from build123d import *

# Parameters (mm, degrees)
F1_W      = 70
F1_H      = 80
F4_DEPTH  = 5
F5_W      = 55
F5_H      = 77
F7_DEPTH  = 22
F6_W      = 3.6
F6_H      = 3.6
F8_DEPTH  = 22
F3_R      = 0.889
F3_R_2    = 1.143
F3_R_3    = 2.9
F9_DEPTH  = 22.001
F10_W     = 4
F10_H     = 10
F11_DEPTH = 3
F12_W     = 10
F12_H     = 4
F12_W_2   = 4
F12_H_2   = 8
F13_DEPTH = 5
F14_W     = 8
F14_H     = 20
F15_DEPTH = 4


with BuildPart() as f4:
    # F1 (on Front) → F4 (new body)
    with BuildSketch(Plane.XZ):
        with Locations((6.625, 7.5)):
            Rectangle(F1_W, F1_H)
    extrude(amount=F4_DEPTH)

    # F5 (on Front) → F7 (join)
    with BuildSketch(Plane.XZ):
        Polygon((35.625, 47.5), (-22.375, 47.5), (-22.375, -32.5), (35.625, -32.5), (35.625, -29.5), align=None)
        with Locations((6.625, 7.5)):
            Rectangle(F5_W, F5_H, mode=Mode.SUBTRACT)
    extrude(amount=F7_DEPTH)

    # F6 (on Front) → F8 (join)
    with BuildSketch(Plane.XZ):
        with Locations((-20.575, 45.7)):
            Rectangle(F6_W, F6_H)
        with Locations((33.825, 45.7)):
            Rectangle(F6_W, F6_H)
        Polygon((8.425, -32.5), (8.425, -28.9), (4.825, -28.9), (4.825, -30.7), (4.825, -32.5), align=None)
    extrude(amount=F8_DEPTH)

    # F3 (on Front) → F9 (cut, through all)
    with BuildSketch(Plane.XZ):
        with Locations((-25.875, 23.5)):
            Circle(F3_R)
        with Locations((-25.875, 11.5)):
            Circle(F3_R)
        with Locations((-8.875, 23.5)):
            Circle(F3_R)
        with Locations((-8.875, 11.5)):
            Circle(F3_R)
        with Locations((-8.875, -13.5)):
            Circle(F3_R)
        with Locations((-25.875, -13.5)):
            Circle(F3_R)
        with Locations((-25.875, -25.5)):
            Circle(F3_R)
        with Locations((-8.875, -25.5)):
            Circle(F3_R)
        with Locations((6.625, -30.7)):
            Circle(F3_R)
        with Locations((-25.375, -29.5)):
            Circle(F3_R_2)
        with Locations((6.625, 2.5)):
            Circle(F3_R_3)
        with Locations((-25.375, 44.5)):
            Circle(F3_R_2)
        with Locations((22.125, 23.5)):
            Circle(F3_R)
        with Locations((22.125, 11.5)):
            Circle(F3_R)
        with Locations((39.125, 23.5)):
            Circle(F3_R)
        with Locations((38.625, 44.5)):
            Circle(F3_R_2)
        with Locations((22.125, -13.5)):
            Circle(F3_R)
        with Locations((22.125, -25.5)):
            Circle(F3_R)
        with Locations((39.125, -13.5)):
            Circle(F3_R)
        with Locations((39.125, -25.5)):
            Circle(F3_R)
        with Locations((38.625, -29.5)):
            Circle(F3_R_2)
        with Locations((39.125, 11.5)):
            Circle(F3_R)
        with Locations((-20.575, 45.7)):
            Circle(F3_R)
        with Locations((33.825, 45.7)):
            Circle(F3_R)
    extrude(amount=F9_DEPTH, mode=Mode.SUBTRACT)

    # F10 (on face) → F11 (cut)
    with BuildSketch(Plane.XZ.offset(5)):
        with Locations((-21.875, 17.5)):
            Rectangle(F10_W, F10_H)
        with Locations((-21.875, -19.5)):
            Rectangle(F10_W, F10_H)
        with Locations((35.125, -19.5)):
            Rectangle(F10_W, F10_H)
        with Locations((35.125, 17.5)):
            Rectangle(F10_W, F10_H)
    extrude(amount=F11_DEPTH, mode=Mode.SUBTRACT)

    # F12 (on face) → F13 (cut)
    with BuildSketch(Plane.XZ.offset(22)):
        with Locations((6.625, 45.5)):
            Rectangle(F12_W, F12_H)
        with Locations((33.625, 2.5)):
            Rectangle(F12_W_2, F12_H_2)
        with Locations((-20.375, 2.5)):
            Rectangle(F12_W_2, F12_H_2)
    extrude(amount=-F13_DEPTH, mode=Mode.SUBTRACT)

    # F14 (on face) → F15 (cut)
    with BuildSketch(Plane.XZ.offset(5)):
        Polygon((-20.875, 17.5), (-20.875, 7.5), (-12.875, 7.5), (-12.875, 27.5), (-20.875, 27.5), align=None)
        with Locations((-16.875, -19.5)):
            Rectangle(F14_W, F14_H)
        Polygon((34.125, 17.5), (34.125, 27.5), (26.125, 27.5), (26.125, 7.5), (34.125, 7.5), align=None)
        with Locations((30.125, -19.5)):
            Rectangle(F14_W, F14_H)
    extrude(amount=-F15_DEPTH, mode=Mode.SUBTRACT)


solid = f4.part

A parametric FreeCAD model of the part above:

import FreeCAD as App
import Part
import Sketcher
from FreeCAD import Vector

doc = App.newDocument("Part")
params = doc.addObject("Spreadsheet::Sheet", "Params")
for row, (alias, value) in enumerate([
    ("sketch1_width", "70 mm"),
    ("sketch1_height", "80 mm"),
    ("pad1_length", "5 mm"),
    ("sketch2_width", "58 mm"),
    ("sketch2_width2", "55 mm"),
    ("sketch2_height", "80 mm"),
    ("sketch2_height2", "77 mm"),
    ("pad2_length", "22 mm"),
    ("sketch3_width", "3.6 mm"),
    ("pad3_length", "22 mm"),
    ("sketch4_diameter", "5.8 mm"),
    ("sketch5_width", "4 mm"),
    ("sketch5_height", "10 mm"),
    ("pocket2_length", "3 mm"),
    ("sketch6_width", "10 mm"),
    ("sketch6_width2", "4 mm"),
    ("sketch6_height", "8 mm"),
    ("pocket3_length", "5 mm"),
    ("sketch7_width", "8 mm"),
    ("sketch7_height", "20 mm"),
    ("pocket4_length", "4 mm"),
], start=1):
    params.set(f"A{row}", alias)
    params.set(f"B{row}", "=" + value)
    params.setAlias(f"B{row}", alias)

body = doc.addObject("PartDesign::Body", "Body")

sketch1 = body.newObject("Sketcher::SketchObject", "Sketch")
sketch1.AttachmentSupport = (doc.getObject("XZ_Plane"), [""])
sketch1.MapMode = "FlatFace"
sketch1.addGeometry([
    Part.LineSegment(Vector(-28.375, 47.5, 0), Vector(-28.375, -32.5, 0)),
    Part.LineSegment(Vector(-28.375, -32.5, 0), Vector(41.625, -32.5, 0)),
    Part.LineSegment(Vector(41.625, -32.5, 0), Vector(41.625, 47.5, 0)),
    Part.LineSegment(Vector(41.625, 47.5, 0), Vector(-28.375, 47.5, 0)),
], False)
sketch1.addConstraint([
    Sketcher.Constraint("Coincident", 0, 2, 1, 1),
    Sketcher.Constraint("Coincident", 1, 2, 2, 1),
    Sketcher.Constraint("Coincident", 2, 2, 3, 1),
    Sketcher.Constraint("Coincident", 3, 2, 0, 1),
    Sketcher.Constraint("Vertical", 0),
    Sketcher.Constraint("Horizontal", 1),
    Sketcher.Constraint("Vertical", 2),
    Sketcher.Constraint("Horizontal", 3),
    Sketcher.Constraint("DistanceX", 1, 1, 1, 2, 70.0),
    Sketcher.Constraint("DistanceY", 0, 2, 0, 1, 80.0),
    Sketcher.Constraint("DistanceY", 0, 2, -1, 1, 32.5),
    Sketcher.Constraint("DistanceX", 0, 2, -1, 1, 28.375),
])
sketch1.setExpression("Constraints[8]", "Params.sketch1_width")
sketch1.setExpression("Constraints[9]", "Params.sketch1_height")
pad1 = body.newObject("PartDesign::Pad", "Pad")
pad1.Profile = sketch1
pad1.setExpression("Length", "Params.pad1_length")

sketch2 = body.newObject("Sketcher::SketchObject", "Sketch001")
sketch2.AttachmentSupport = (doc.getObject("XZ_Plane"), [""])
sketch2.MapMode = "FlatFace"
sketch2.addGeometry([
    Part.LineSegment(Vector(35.625, 47.5, 0), Vector(-22.375, 47.5, 0)),
    Part.LineSegment(Vector(-22.375, 47.5, 0), Vector(-22.375, -32.5, 0)),
    Part.LineSegment(Vector(-22.375, -32.5, 0), Vector(35.625, -32.5, 0)),
    Part.LineSegment(Vector(35.625, -32.5, 0), Vector(35.625, 47.5, 0)),
    Part.LineSegment(Vector(34.125, -31, 0), Vector(-20.875, -31, 0)),
    Part.LineSegment(Vector(-20.875, -31, 0), Vector(-20.875, 46, 0)),
    Part.LineSegment(Vector(-20.875, 46, 0), Vector(34.125, 46, 0)),
    Part.LineSegment(Vector(34.125, 46, 0), Vector(34.125, -31, 0)),
], False)
sketch2.addConstraint([
    Sketcher.Constraint("Coincident", 0, 2, 1, 1),
    Sketcher.Constraint("Coincident", 1, 2, 2, 1),
    Sketcher.Constraint("Coincident", 2, 2, 3, 1),
    Sketcher.Constraint("Coincident", 3, 2, 0, 1),
    Sketcher.Constraint("Coincident", 4, 2, 5, 1),
    Sketcher.Constraint("Coincident", 5, 2, 6, 1),
    Sketcher.Constraint("Coincident", 6, 2, 7, 1),
    Sketcher.Constraint("Coincident", 7, 2, 4, 1),
    Sketcher.Constraint("Horizontal", 0),
    Sketcher.Constraint("Vertical", 1),
    Sketcher.Constraint("Horizontal", 2),
    Sketcher.Constraint("Vertical", 3),
    Sketcher.Constraint("Horizontal", 4),
    Sketcher.Constraint("Vertical", 5),
    Sketcher.Constraint("Horizontal", 6),
    Sketcher.Constraint("Vertical", 7),
    Sketcher.Constraint("DistanceX", 0, 2, 0, 1, 58.0),
    Sketcher.Constraint("DistanceX", 4, 2, 4, 1, 55.0),
    Sketcher.Constraint("DistanceY", 1, 2, 1, 1, 80.0),
    Sketcher.Constraint("DistanceY", 5, 1, 5, 2, 77.0),
    Sketcher.Constraint("DistanceY", 4, 2, -1, 1, 31.0),
    Sketcher.Constraint("DistanceY", -1, 1, 0, 2, 47.5),
    Sketcher.Constraint("DistanceX", 1, 2, 4, 2, 1.5),
    Sketcher.Constraint("DistanceX", 0, 2, -1, 1, 22.375),
])
sketch2.setExpression("Constraints[16]", "Params.sketch2_width")
sketch2.setExpression("Constraints[17]", "Params.sketch2_width2")
sketch2.setExpression("Constraints[18]", "Params.sketch2_height")
sketch2.setExpression("Constraints[19]", "Params.sketch2_height2")
pad2 = body.newObject("PartDesign::Pad", "Pad001")
pad2.Profile = sketch2
pad2.setExpression("Length", "Params.pad2_length")

sketch3 = body.newObject("Sketcher::SketchObject", "Sketch002")
sketch3.AttachmentSupport = (doc.getObject("XZ_Plane"), [""])
sketch3.MapMode = "FlatFace"
sketch3.addGeometry([
    Part.LineSegment(Vector(-22.375, 47.5, 0), Vector(-22.375, 43.9, 0)),
    Part.LineSegment(Vector(-22.375, 43.9, 0), Vector(-18.775, 43.9, 0)),
    Part.LineSegment(Vector(-18.775, 43.9, 0), Vector(-18.775, 47.5, 0)),
    Part.LineSegment(Vector(-18.775, 47.5, 0), Vector(-22.375, 47.5, 0)),
    Part.LineSegment(Vector(32.025, 47.5, 0), Vector(32.025, 43.9, 0)),
    Part.LineSegment(Vector(32.025, 43.9, 0), Vector(35.625, 43.9, 0)),
    Part.LineSegment(Vector(35.625, 43.9, 0), Vector(35.625, 47.5, 0)),
    Part.LineSegment(Vector(35.625, 47.5, 0), Vector(32.025, 47.5, 0)),
    Part.LineSegment(Vector(8.425, -32.5, 0), Vector(8.425, -28.9, 0)),
    Part.LineSegment(Vector(8.425, -28.9, 0), Vector(4.825, -28.9, 0)),
    Part.LineSegment(Vector(4.825, -28.9, 0), Vector(4.825, -32.5, 0)),
    Part.LineSegment(Vector(4.825, -32.5, 0), Vector(8.425, -32.5, 0)),
], False)
sketch3.addConstraint([
    Sketcher.Constraint("Coincident", 0, 2, 1, 1),
    Sketcher.Constraint("Coincident", 1, 2, 2, 1),
    Sketcher.Constraint("Coincident", 2, 2, 3, 1),
    Sketcher.Constraint("Coincident", 3, 2, 0, 1),
    Sketcher.Constraint("Coincident", 4, 2, 5, 1),
    Sketcher.Constraint("Coincident", 5, 2, 6, 1),
    Sketcher.Constraint("Coincident", 6, 2, 7, 1),
    Sketcher.Constraint("Coincident", 7, 2, 4, 1),
    Sketcher.Constraint("Coincident", 8, 2, 9, 1),
    Sketcher.Constraint("Coincident", 9, 2, 10, 1),
    Sketcher.Constraint("Coincident", 10, 2, 11, 1),
    Sketcher.Constraint("Coincident", 11, 2, 8, 1),
    Sketcher.Constraint("Vertical", 0),
    Sketcher.Constraint("Horizontal", 1),
    Sketcher.Constraint("Vertical", 2),
    Sketcher.Constraint("Horizontal", 3),
    Sketcher.Constraint("Vertical", 4),
    Sketcher.Constraint("Horizontal", 5),
    Sketcher.Constraint("Vertical", 6),
    Sketcher.Constraint("Horizontal", 7),
    Sketcher.Constraint("Vertical", 8),
    Sketcher.Constraint("Horizontal", 9),
    Sketcher.Constraint("Vertical", 10),
    Sketcher.Constraint("Horizontal", 11),
    Sketcher.Constraint("Horizontal", 1, 2, 4, 2),
    Sketcher.Constraint("Horizontal", 3, 2, 6, 2),
    Sketcher.Constraint("Equal", 3, 5),
    Sketcher.Constraint("Equal", 7, 9),
    Sketcher.Constraint("Equal", 11, 0),
    Sketcher.Constraint("Equal", 6, 8),
    Sketcher.Constraint("DistanceX", 1, 1, 1, 2, 3.6),
    Sketcher.Constraint("DistanceX", 0, 2, 5, 2, 58.0),
    Sketcher.Constraint("DistanceY", -1, 1, 0, 2, 43.9),
    Sketcher.Constraint("DistanceY", 8, 2, -1, 1, 28.9),
    Sketcher.Constraint("DistanceX", 8, 2, 4, 2, 23.6),
    Sketcher.Constraint("DistanceX", 0, 2, -1, 1, 22.375),
])
sketch3.setExpression("Constraints[30]", "Params.sketch3_width")
pad3 = body.newObject("PartDesign::Pad", "Pad002")
pad3.Profile = sketch3
pad3.setExpression("Length", "Params.pad3_length")

sketch4 = body.newObject("Sketcher::SketchObject", "Sketch003")
sketch4.AttachmentSupport = (doc.getObject("XZ_Plane"), [""])
sketch4.MapMode = "FlatFace"
sketch4.addGeometry([
    Part.Circle(Vector(-25.875, 23.5, 0), Vector(0, 0, 1), 0.889),
    Part.Circle(Vector(-25.875, 11.5, 0), Vector(0, 0, 1), 0.889),
    Part.Circle(Vector(-8.875, 23.5, 0), Vector(0, 0, 1), 0.889),
    Part.Circle(Vector(-8.875, 11.5, 0), Vector(0, 0, 1), 0.889),
    Part.Circle(Vector(-8.875, -13.5, 0), Vector(0, 0, 1), 0.889),
    Part.Circle(Vector(-25.875, -13.5, 0), Vector(0, 0, 1), 0.889),
    Part.Circle(Vector(-25.875, -25.5, 0), Vector(0, 0, 1), 0.889),
    Part.Circle(Vector(-8.875, -25.5, 0), Vector(0, 0, 1), 0.889),
    Part.Circle(Vector(6.625, -30.7, 0), Vector(0, 0, 1), 0.889),
    Part.Circle(Vector(-25.375, -29.5, 0), Vector(0, 0, 1), 1.143),
    Part.Circle(Vector(6.625, 2.5, 0), Vector(0, 0, 1), 2.9),
    Part.Circle(Vector(-25.375, 44.5, 0), Vector(0, 0, 1), 1.143),
    Part.Circle(Vector(22.125, 23.5, 0), Vector(0, 0, 1), 0.889),
    Part.Circle(Vector(22.125, 11.5, 0), Vector(0, 0, 1), 0.889),
    Part.Circle(Vector(39.125, 23.5, 0), Vector(0, 0, 1), 0.889),
    Part.Circle(Vector(38.625, 44.5, 0), Vector(0, 0, 1), 1.143),
    Part.Circle(Vector(22.125, -13.5, 0), Vector(0, 0, 1), 0.889),
    Part.Circle(Vector(22.125, -25.5, 0), Vector(0, 0, 1), 0.889),
    Part.Circle(Vector(39.125, -13.5, 0), Vector(0, 0, 1), 0.889),
    Part.Circle(Vector(39.125, -25.5, 0), Vector(0, 0, 1), 0.889),
    Part.Circle(Vector(38.625, -29.5, 0), Vector(0, 0, 1), 1.143),
    Part.Circle(Vector(39.125, 11.5, 0), Vector(0, 0, 1), 0.889),
    Part.Circle(Vector(-20.575, 45.7, 0), Vector(0, 0, 1), 0.889),
    Part.Circle(Vector(33.825, 45.7, 0), Vector(0, 0, 1), 0.889),
], False)
sketch4.addConstraint([
    Sketcher.Constraint("Equal", 0, 1),
    Sketcher.Constraint("Equal", 1, 2),
    Sketcher.Constraint("Equal", 2, 3),
    Sketcher.Constraint("Equal", 3, 4),
    Sketcher.Constraint("Equal", 4, 5),
    Sketcher.Constraint("Equal", 5, 6),
    Sketcher.Constraint("Equal", 6, 7),
    Sketcher.Constraint("Equal", 7, 8),
    Sketcher.Constraint("Equal", 9, 11),
    Sketcher.Constraint("Equal", 8, 12),
    Sketcher.Constraint("Equal", 12, 13),
    Sketcher.Constraint("Equal", 13, 14),
    Sketcher.Constraint("Equal", 11, 15),
    Sketcher.Constraint("Equal", 14, 16),
    Sketcher.Constraint("Equal", 16, 17),
    Sketcher.Constraint("Equal", 17, 18),
    Sketcher.Constraint("Equal", 18, 19),
    Sketcher.Constraint("Equal", 15, 20),
    Sketcher.Constraint("Equal", 19, 21),
    Sketcher.Constraint("Equal", 21, 22),
    Sketcher.Constraint("Equal", 22, 23),
    Sketcher.Constraint("Horizontal", 0, 3, 2, 3),
    Sketcher.Constraint("Horizontal", 1, 3, 3, 3),
    Sketcher.Constraint("Horizontal", 4, 3, 5, 3),
    Sketcher.Constraint("Horizontal", 6, 3, 7, 3),
    Sketcher.Constraint("Horizontal", 2, 3, 12, 3),
    Sketcher.Constraint("Horizontal", 3, 3, 13, 3),
    Sketcher.Constraint("Horizontal", 12, 3, 14, 3),
    Sketcher.Constraint("Horizontal", 11, 3, 15, 3),
    Sketcher.Constraint("Horizontal", 5, 3, 16, 3),
    Sketcher.Constraint("Horizontal", 7, 3, 17, 3),
    Sketcher.Constraint("Horizontal", 16, 3, 18, 3),
    Sketcher.Constraint("Horizontal", 17, 3, 19, 3),
    Sketcher.Constraint("Horizontal", 9, 3, 20, 3),
    Sketcher.Constraint("Horizontal", 13, 3, 21, 3),
    Sketcher.Constraint("Horizontal", 22, 3, 23, 3),
    Sketcher.Constraint("Vertical", 0, 3, 1, 3),
    Sketcher.Constraint("Vertical", 2, 3, 3, 3),
    Sketcher.Constraint("Vertical", 3, 3, 4, 3),
    Sketcher.Constraint("Vertical", 1, 3, 5, 3),
    Sketcher.Constraint("Vertical", 5, 3, 6, 3),
    Sketcher.Constraint("Vertical", 4, 3, 7, 3),
    Sketcher.Constraint("Vertical", 8, 3, 10, 3),
    Sketcher.Constraint("Vertical", 9, 3, 11, 3),
    Sketcher.Constraint("Vertical", 12, 3, 13, 3),
    Sketcher.Constraint("Vertical", 13, 3, 16, 3),
    Sketcher.Constraint("Vertical", 16, 3, 17, 3),
    Sketcher.Constraint("Vertical", 14, 3, 18, 3),
    Sketcher.Constraint("Vertical", 18, 3, 19, 3),
    Sketcher.Constraint("Vertical", 15, 3, 20, 3),
    Sketcher.Constraint("Vertical", 19, 3, 21, 3),
    Sketcher.Constraint("Diameter", 10, 5.8),
    Sketcher.Constraint("Diameter", 0, 1.778),
    Sketcher.Constraint("Diameter", 9, 2.286),
    Sketcher.Constraint("DistanceY", 1, 3, 0, 3, 12.0),
    Sketcher.Constraint("DistanceX", 0, 3, 2, 3, 17.0),
    Sketcher.Constraint("DistanceY", 4, 3, 3, 3, 25.0),
    Sketcher.Constraint("DistanceY", 6, 3, 5, 3, 12.0),
    Sketcher.Constraint("DistanceY", 9, 3, 6, 3, 4.0),
    Sketcher.Constraint("DistanceX", 9, 3, 8, 3, 32.0),
    Sketcher.Constraint("DistanceY", 10, 3, 3, 3, 9.0),
    Sketcher.Constraint("DistanceY", 0, 3, 11, 3, 21.0),
    Sketcher.Constraint("DistanceX", 2, 3, 12, 3, 31.0),
    Sketcher.Constraint("DistanceX", 12, 3, 14, 3, 17.0),
    Sketcher.Constraint("DistanceX", 10, 3, 15, 3, 32.0),
    Sketcher.Constraint("DistanceY", -1, 1, 0, 3, 23.5),
    Sketcher.Constraint("DistanceY", 8, 3, -1, 1, 30.7),
    Sketcher.Constraint("DistanceY", -1, 1, 22, 3, 45.7),
    Sketcher.Constraint("DistanceX", 7, 3, 8, 3, 15.5),
    Sketcher.Constraint("DistanceX", 11, 3, 22, 3, 4.8),
    Sketcher.Constraint("DistanceX", 23, 3, 15, 3, 4.8),
    Sketcher.Constraint("DistanceX", 0, 3, -1, 1, 25.875),
])
sketch4.setExpression("Constraints[51]", "Params.sketch4_diameter")
pocket1 = body.newObject("PartDesign::Pocket", "Pocket")
pocket1.Profile = sketch4
pocket1.Type = "ThroughAll"
pocket1.Reversed = True

sketch5 = body.newObject("Sketcher::SketchObject", "Sketch004")
sketch5.AttachmentSupport = (doc.getObject("XZ_Plane"), [""])
sketch5.MapMode = "FlatFace"
sketch5.AttachmentOffset = App.Placement(Vector(0, 0, 5), App.Rotation())
sketch5.addGeometry([
    Part.LineSegment(Vector(-23.875, 22.5, 0), Vector(-23.875, 12.5, 0)),
    Part.LineSegment(Vector(-23.875, 12.5, 0), Vector(-19.875, 12.5, 0)),
    Part.LineSegment(Vector(-19.875, 12.5, 0), Vector(-19.875, 22.5, 0)),
    Part.LineSegment(Vector(-19.875, 22.5, 0), Vector(-23.875, 22.5, 0)),
    Part.LineSegment(Vector(-23.875, -14.5, 0), Vector(-23.875, -24.5, 0)),
    Part.LineSegment(Vector(-23.875, -24.5, 0), Vector(-19.875, -24.5, 0)),
    Part.LineSegment(Vector(-19.875, -24.5, 0), Vector(-19.875, -14.5, 0)),
    Part.LineSegment(Vector(-19.875, -14.5, 0), Vector(-23.875, -14.5, 0)),
    Part.LineSegment(Vector(33.125, -14.5, 0), Vector(33.125, -24.5, 0)),
    Part.LineSegment(Vector(33.125, -24.5, 0), Vector(37.125, -24.5, 0)),
    Part.LineSegment(Vector(37.125, -24.5, 0), Vector(37.125, -14.5, 0)),
    Part.LineSegment(Vector(37.125, -14.5, 0), Vector(33.125, -14.5, 0)),
    Part.LineSegment(Vector(33.125, 22.5, 0), Vector(33.125, 12.5, 0)),
    Part.LineSegment(Vector(33.125, 12.5, 0), Vector(37.125, 12.5, 0)),
    Part.LineSegment(Vector(37.125, 12.5, 0), Vector(37.125, 22.5, 0)),
    Part.LineSegment(Vector(37.125, 22.5, 0), Vector(33.125, 22.5, 0)),
], False)
sketch5.addConstraint([
    Sketcher.Constraint("Coincident", 0, 2, 1, 1),
    Sketcher.Constraint("Coincident", 1, 2, 2, 1),
    Sketcher.Constraint("Coincident", 2, 2, 3, 1),
    Sketcher.Constraint("Coincident", 3, 2, 0, 1),
    Sketcher.Constraint("Coincident", 4, 2, 5, 1),
    Sketcher.Constraint("Coincident", 5, 2, 6, 1),
    Sketcher.Constraint("Coincident", 6, 2, 7, 1),
    Sketcher.Constraint("Coincident", 7, 2, 4, 1),
    Sketcher.Constraint("Coincident", 8, 2, 9, 1),
    Sketcher.Constraint("Coincident", 9, 2, 10, 1),
    Sketcher.Constraint("Coincident", 10, 2, 11, 1),
    Sketcher.Constraint("Coincident", 11, 2, 8, 1),
    Sketcher.Constraint("Coincident", 12, 2, 13, 1),
    Sketcher.Constraint("Coincident", 13, 2, 14, 1),
    Sketcher.Constraint("Coincident", 14, 2, 15, 1),
    Sketcher.Constraint("Coincident", 15, 2, 12, 1),
    Sketcher.Constraint("Vertical", 0),
    Sketcher.Constraint("Horizontal", 1),
    Sketcher.Constraint("Vertical", 2),
    Sketcher.Constraint("Horizontal", 3),
    Sketcher.Constraint("Vertical", 4),
    Sketcher.Constraint("Horizontal", 5),
    Sketcher.Constraint("Vertical", 6),
    Sketcher.Constraint("Horizontal", 7),
    Sketcher.Constraint("Vertical", 8),
    Sketcher.Constraint("Horizontal", 9),
    Sketcher.Constraint("Vertical", 10),
    Sketcher.Constraint("Horizontal", 11),
    Sketcher.Constraint("Vertical", 12),
    Sketcher.Constraint("Horizontal", 13),
    Sketcher.Constraint("Vertical", 14),
    Sketcher.Constraint("Horizontal", 15),
    Sketcher.Constraint("Horizontal", 5, 2, 8, 2),
    Sketcher.Constraint("Horizontal", 7, 2, 10, 2),
    Sketcher.Constraint("Horizontal", 1, 2, 12, 2),
    Sketcher.Constraint("Horizontal", 3, 2, 14, 2),
    Sketcher.Constraint("Vertical", 3, 2, 4, 2),
    Sketcher.Constraint("Vertical", 2, 2, 5, 2),
    Sketcher.Constraint("Vertical", 11, 2, 12, 2),
    Sketcher.Constraint("Vertical", 10, 2, 13, 2),
    Sketcher.Constraint("Equal", 7, 9),
    Sketcher.Constraint("Equal", 2, 4),
    Sketcher.Constraint("DistanceX", 1, 1, 1, 2, 4.0),
    Sketcher.Constraint("DistanceY", 0, 2, 0, 1, 10.0),
    Sketcher.Constraint("DistanceY", 4, 2, 0, 2, 37.0),
    Sketcher.Constraint("DistanceX", 5, 2, 8, 2, 53.0),
    Sketcher.Constraint("DistanceY", -1, 1, 0, 2, 12.5),
    Sketcher.Constraint("DistanceX", 0, 2, -1, 1, 23.875),
])
sketch5.setExpression("Constraints[42]", "Params.sketch5_width")
sketch5.setExpression("Constraints[43]", "Params.sketch5_height")
pocket2 = body.newObject("PartDesign::Pocket", "Pocket001")
pocket2.Profile = sketch5
pocket2.setExpression("Length", "Params.pocket2_length")
pocket2.Reversed = True

sketch6 = body.newObject("Sketcher::SketchObject", "Sketch005")
sketch6.AttachmentSupport = (doc.getObject("XZ_Plane"), [""])
sketch6.MapMode = "FlatFace"
sketch6.AttachmentOffset = App.Placement(Vector(0, 0, 22), App.Rotation())
sketch6.addGeometry([
    Part.LineSegment(Vector(1.625, 47.5, 0), Vector(1.625, 43.5, 0)),
    Part.LineSegment(Vector(1.625, 43.5, 0), Vector(11.625, 43.5, 0)),
    Part.LineSegment(Vector(11.625, 43.5, 0), Vector(11.625, 47.5, 0)),
    Part.LineSegment(Vector(11.625, 47.5, 0), Vector(1.625, 47.5, 0)),
    Part.LineSegment(Vector(31.625, 6.5, 0), Vector(31.625, -1.5, 0)),
    Part.LineSegment(Vector(31.625, -1.5, 0), Vector(35.625, -1.5, 0)),
    Part.LineSegment(Vector(35.625, -1.5, 0), Vector(35.625, 6.5, 0)),
    Part.LineSegment(Vector(35.625, 6.5, 0), Vector(31.625, 6.5, 0)),
    Part.LineSegment(Vector(-22.375, 6.5, 0), Vector(-22.375, -1.5, 0)),
    Part.LineSegment(Vector(-22.375, -1.5, 0), Vector(-18.375, -1.5, 0)),
    Part.LineSegment(Vector(-18.375, -1.5, 0), Vector(-18.375, 6.5, 0)),
    Part.LineSegment(Vector(-18.375, 6.5, 0), Vector(-22.375, 6.5, 0)),
], False)
sketch6.addConstraint([
    Sketcher.Constraint("Coincident", 0, 2, 1, 1),
    Sketcher.Constraint("Coincident", 1, 2, 2, 1),
    Sketcher.Constraint("Coincident", 2, 2, 3, 1),
    Sketcher.Constraint("Coincident", 3, 2, 0, 1),
    Sketcher.Constraint("Coincident", 4, 2, 5, 1),
    Sketcher.Constraint("Coincident", 5, 2, 6, 1),
    Sketcher.Constraint("Coincident", 6, 2, 7, 1),
    Sketcher.Constraint("Coincident", 7, 2, 4, 1),
    Sketcher.Constraint("Coincident", 8, 2, 9, 1),
    Sketcher.Constraint("Coincident", 9, 2, 10, 1),
    Sketcher.Constraint("Coincident", 10, 2, 11, 1),
    Sketcher.Constraint("Coincident", 11, 2, 8, 1),
    Sketcher.Constraint("Vertical", 0),
    Sketcher.Constraint("Horizontal", 1),
    Sketcher.Constraint("Vertical", 2),
    Sketcher.Constraint("Horizontal", 3),
    Sketcher.Constraint("Vertical", 4),
    Sketcher.Constraint("Horizontal", 5),
    Sketcher.Constraint("Vertical", 6),
    Sketcher.Constraint("Horizontal", 7),
    Sketcher.Constraint("Vertical", 8),
    Sketcher.Constraint("Horizontal", 9),
    Sketcher.Constraint("Vertical", 10),
    Sketcher.Constraint("Horizontal", 11),
    Sketcher.Constraint("Horizontal", 5, 2, 8, 2),
    Sketcher.Constraint("Horizontal", 7, 2, 10, 2),
    Sketcher.Constraint("Equal", 7, 9),
    Sketcher.Constraint("Equal", 11, 0),
    Sketcher.Constraint("DistanceX", 1, 1, 1, 2, 10.0),
    Sketcher.Constraint("DistanceX", 5, 1, 5, 2, 4.0),
    Sketcher.Constraint("DistanceY", 4, 2, 4, 1, 8.0),
    Sketcher.Constraint("DistanceX", 1, 2, 4, 2, 20.0),
    Sketcher.Constraint("DistanceY", 4, 2, 1, 2, 45.0),
    Sketcher.Constraint("DistanceX", 8, 2, 0, 2, 24.0),
    Sketcher.Constraint("DistanceY", -1, 1, 0, 2, 43.5),
    Sketcher.Constraint("DistanceX", -1, 1, 0, 2, 1.625),
])
sketch6.setExpression("Constraints[28]", "Params.sketch6_width")
sketch6.setExpression("Constraints[29]", "Params.sketch6_width2")
sketch6.setExpression("Constraints[30]", "Params.sketch6_height")
pocket3 = body.newObject("PartDesign::Pocket", "Pocket002")
pocket3.Profile = sketch6
pocket3.setExpression("Length", "Params.pocket3_length")

sketch7 = body.newObject("Sketcher::SketchObject", "Sketch006")
sketch7.AttachmentSupport = (doc.getObject("XZ_Plane"), [""])
sketch7.MapMode = "FlatFace"
sketch7.AttachmentOffset = App.Placement(Vector(0, 0, 5), App.Rotation())
sketch7.addGeometry([
    Part.LineSegment(Vector(-20.875, 7.5, 0), Vector(-12.875, 7.5, 0)),
    Part.LineSegment(Vector(-12.875, 7.5, 0), Vector(-12.875, 27.5, 0)),
    Part.LineSegment(Vector(-12.875, 27.5, 0), Vector(-20.875, 27.5, 0)),
    Part.LineSegment(Vector(-20.875, 27.5, 0), Vector(-20.875, 7.5, 0)),
    Part.LineSegment(Vector(-20.875, -9.5, 0), Vector(-20.875, -29.5, 0)),
    Part.LineSegment(Vector(-20.875, -29.5, 0), Vector(-12.875, -29.5, 0)),
    Part.LineSegment(Vector(-12.875, -29.5, 0), Vector(-12.875, -9.5, 0)),
    Part.LineSegment(Vector(-12.875, -9.5, 0), Vector(-20.875, -9.5, 0)),
    Part.LineSegment(Vector(34.125, 27.5, 0), Vector(26.125, 27.5, 0)),
    Part.LineSegment(Vector(26.125, 27.5, 0), Vector(26.125, 7.5, 0)),
    Part.LineSegment(Vector(26.125, 7.5, 0), Vector(34.125, 7.5, 0)),
    Part.LineSegment(Vector(34.125, 7.5, 0), Vector(34.125, 27.5, 0)),
    Part.LineSegment(Vector(26.125, -9.5, 0), Vector(26.125, -29.5, 0)),
    Part.LineSegment(Vector(26.125, -29.5, 0), Vector(34.125, -29.5, 0)),
    Part.LineSegment(Vector(34.125, -29.5, 0), Vector(34.125, -9.5, 0)),
    Part.LineSegment(Vector(34.125, -9.5, 0), Vector(26.125, -9.5, 0)),
], False)
sketch7.addConstraint([
    Sketcher.Constraint("Coincident", 0, 2, 1, 1),
    Sketcher.Constraint("Coincident", 1, 2, 2, 1),
    Sketcher.Constraint("Coincident", 2, 2, 3, 1),
    Sketcher.Constraint("Coincident", 3, 2, 0, 1),
    Sketcher.Constraint("Coincident", 4, 2, 5, 1),
    Sketcher.Constraint("Coincident", 5, 2, 6, 1),
    Sketcher.Constraint("Coincident", 6, 2, 7, 1),
    Sketcher.Constraint("Coincident", 7, 2, 4, 1),
    Sketcher.Constraint("Coincident", 8, 2, 9, 1),
    Sketcher.Constraint("Coincident", 9, 2, 10, 1),
    Sketcher.Constraint("Coincident", 10, 2, 11, 1),
    Sketcher.Constraint("Coincident", 11, 2, 8, 1),
    Sketcher.Constraint("Coincident", 12, 2, 13, 1),
    Sketcher.Constraint("Coincident", 13, 2, 14, 1),
    Sketcher.Constraint("Coincident", 14, 2, 15, 1),
    Sketcher.Constraint("Coincident", 15, 2, 12, 1),
    Sketcher.Constraint("Horizontal", 0),
    Sketcher.Constraint("Vertical", 1),
    Sketcher.Constraint("Horizontal", 2),
    Sketcher.Constraint("Vertical", 3),
    Sketcher.Constraint("Vertical", 4),
    Sketcher.Constraint("Horizontal", 5),
    Sketcher.Constraint("Vertical", 6),
    Sketcher.Constraint("Horizontal", 7),
    Sketcher.Constraint("Horizontal", 8),
    Sketcher.Constraint("Vertical", 9),
    Sketcher.Constraint("Horizontal", 10),
    Sketcher.Constraint("Vertical", 11),
    Sketcher.Constraint("Vertical", 12),
    Sketcher.Constraint("Horizontal", 13),
    Sketcher.Constraint("Vertical", 14),
    Sketcher.Constraint("Horizontal", 15),
    Sketcher.Constraint("Horizontal", 2, 2, 8, 2),
    Sketcher.Constraint("Horizontal", 3, 2, 9, 2),
    Sketcher.Constraint("Horizontal", 5, 2, 12, 2),
    Sketcher.Constraint("Horizontal", 7, 2, 14, 2),
    Sketcher.Constraint("Vertical", 3, 2, 4, 2),
    Sketcher.Constraint("Vertical", 1, 2, 5, 2),
    Sketcher.Constraint("Vertical", 9, 2, 12, 2),
    Sketcher.Constraint("Vertical", 11, 2, 13, 2),
    Sketcher.Constraint("Equal", 7, 8),
    Sketcher.Constraint("Equal", 3, 4),
    Sketcher.Constraint("DistanceX", 0, 1, 0, 2, 8.0),
    Sketcher.Constraint("DistanceY", 1, 1, 1, 2, 20.0),
    Sketcher.Constraint("DistanceY", 4, 2, 3, 2, 37.0),
    Sketcher.Constraint("DistanceX", 1, 2, 8, 2, 39.0),
    Sketcher.Constraint("DistanceY", -1, 1, 0, 2, 7.5),
    Sketcher.Constraint("DistanceX", 0, 2, -1, 1, 12.875),
])
sketch7.setExpression("Constraints[42]", "Params.sketch7_width")
sketch7.setExpression("Constraints[43]", "Params.sketch7_height")
pocket4 = body.newObject("PartDesign::Pocket", "Pocket003")
pocket4.Profile = sketch7
pocket4.setExpression("Length", "Params.pocket4_length")

doc.recompute()
